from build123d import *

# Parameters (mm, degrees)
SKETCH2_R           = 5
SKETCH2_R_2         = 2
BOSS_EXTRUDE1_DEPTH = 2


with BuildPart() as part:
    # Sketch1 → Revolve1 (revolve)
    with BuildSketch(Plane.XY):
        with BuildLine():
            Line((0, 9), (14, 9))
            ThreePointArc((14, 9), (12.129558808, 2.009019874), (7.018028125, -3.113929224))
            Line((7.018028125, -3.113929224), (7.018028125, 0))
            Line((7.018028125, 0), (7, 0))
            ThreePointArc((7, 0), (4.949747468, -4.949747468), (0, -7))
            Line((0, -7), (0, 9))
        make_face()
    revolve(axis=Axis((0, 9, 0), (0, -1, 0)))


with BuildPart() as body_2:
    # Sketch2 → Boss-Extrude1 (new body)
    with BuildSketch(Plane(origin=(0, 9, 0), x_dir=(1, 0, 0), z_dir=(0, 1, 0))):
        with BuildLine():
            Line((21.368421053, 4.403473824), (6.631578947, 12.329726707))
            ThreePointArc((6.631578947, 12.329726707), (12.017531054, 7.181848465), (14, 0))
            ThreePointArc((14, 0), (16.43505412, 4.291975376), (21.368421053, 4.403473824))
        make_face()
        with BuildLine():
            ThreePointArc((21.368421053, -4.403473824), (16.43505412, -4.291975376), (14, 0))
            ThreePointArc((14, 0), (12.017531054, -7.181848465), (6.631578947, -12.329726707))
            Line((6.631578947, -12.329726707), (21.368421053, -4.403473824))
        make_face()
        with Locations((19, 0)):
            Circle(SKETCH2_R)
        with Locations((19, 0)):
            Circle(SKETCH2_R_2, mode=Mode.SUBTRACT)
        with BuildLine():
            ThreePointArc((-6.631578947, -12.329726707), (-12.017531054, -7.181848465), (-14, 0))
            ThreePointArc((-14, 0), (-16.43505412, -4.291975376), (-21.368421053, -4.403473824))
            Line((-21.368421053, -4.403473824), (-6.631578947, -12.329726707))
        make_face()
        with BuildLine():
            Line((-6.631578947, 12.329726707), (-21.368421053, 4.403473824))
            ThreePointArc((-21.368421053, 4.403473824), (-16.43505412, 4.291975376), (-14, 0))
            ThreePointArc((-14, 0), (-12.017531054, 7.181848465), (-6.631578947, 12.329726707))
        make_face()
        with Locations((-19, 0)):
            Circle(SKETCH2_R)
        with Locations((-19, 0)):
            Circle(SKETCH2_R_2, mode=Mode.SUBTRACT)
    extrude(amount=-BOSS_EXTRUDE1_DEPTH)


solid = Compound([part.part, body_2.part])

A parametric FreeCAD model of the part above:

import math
import FreeCAD as App
import Part
import Sketcher
from FreeCAD import Vector
Q = App.Units.Quantity

doc = App.newDocument("Part")
body = doc.addObject("PartDesign::Body", "Body")

sketch1 = body.newObject("Sketcher::SketchObject", "Sketch")
sketch1.AttachmentSupport = (doc.getObject("XY_Plane"), [""])
sketch1.MapMode = "FlatFace"
sketch1.addGeometry([
    Part.LineSegment(Vector(14, 9, 0), Vector(0, 9, 0)),
    Part.LineSegment(Vector(0, 9, 0), Vector(0, -7, 0)),
    Part.ArcOfCircle(Part.Circle(Vector(0, 0, 0), Vector(0, 0, 1), 7), math.radians(-90), math.radians(0)),
    Part.LineSegment(Vector(7, 0, 0), Vector(7.018028, 0, 0)),
    Part.LineSegment(Vector(7.018028, 0, 0), Vector(7.018028, -3.113929, 0)),
    Part.ArcOfCircle(Part.Circle(Vector(0, 9, 0), Vector(0, 0, 1), 14), math.radians(-59.914768), math.radians(0)),
], False)
sketch1.addConstraint([
    Sketcher.Constraint("Coincident", 0, 2, 1, 1),
    Sketcher.Constraint("Coincident", 1, 2, 2, 1),
    Sketcher.Constraint("Coincident", 2, 2, 3, 1),
    Sketcher.Constraint("Coincident", 3, 2, 4, 1),
    Sketcher.Constraint("Coincident", 4, 2, 5, 1),
    Sketcher.Constraint("Coincident", 5, 2, 0, 1),
    Sketcher.Constraint("Horizontal", 0),
    Sketcher.Constraint("Vertical", 1),
    Sketcher.Constraint("Horizontal", 3),
    Sketcher.Constraint("Vertical", 4),
    Sketcher.Constraint("Coincident", 2, 3, -1, 1),
    Sketcher.Constraint("Coincident", 0, 2, 5, 3),
    Sketcher.Constraint("PointOnObject", 5, 3, -2),
    Sketcher.Constraint("PointOnObject", 2, 2, -1),
    Sketcher.Constraint("Radius", 2, Q("7 mm")),
    Sketcher.Constraint("Radius", 5, Q("14 mm")),
    Sketcher.Constraint("DistanceY", 1, 2, 1, 1, Q("16 mm")),
    Sketcher.Constraint("DistanceX", 3, 1, 3, 2, Q("0.018028 mm")),
])
revolution = body.newObject("PartDesign::Revolution", "Revolution")
revolution.Profile = sketch1
revolution.ReferenceAxis = (sketch1, ["V_Axis"])
revolution.Angle = 360
body2 = doc.addObject("PartDesign::Body", "Body001")
body2.AllowCompound = True

sketch2 = body2.newObject("Sketcher::SketchObject", "Sketch001")
sketch2.AttachmentSupport = (doc.getObject("XZ_Plane001"), [""])
sketch2.MapMode = "FlatFace"
sketch2.AttachmentOffset = App.Placement(Vector(0, 0, -9), App.Rotation())
sketch2.addGeometry([
    Part.LineSegment(Vector(21.368421, -4.403474, 0), Vector(6.631579, -12.329727, 0)),
    Part.ArcOfCircle(Part.Circle(Vector(0, 0, 0), Vector(0, 0, 1), 14), math.radians(-61.726286), math.radians(0)),
    Part.ArcOfCircle(Part.Circle(Vector(0, 0, 0), Vector(0, 0, 1), 14), math.radians(0), math.radians(61.726286)),
    Part.LineSegment(Vector(6.631579, 12.329727, 0), Vector(21.368421, 4.403474, 0)),
    Part.ArcOfCircle(Part.Circle(Vector(19, 0, 0), Vector(0, 0, 1), 5), math.radians(-61.726286), math.radians(61.726286)),
    Part.Circle(Vector(19, 0, 0), Vector(0, 0, 1), 2),
    Part.ArcOfCircle(Part.Circle(Vector(0, 0, 0), Vector(0, 0, 1), 14), math.radians(118.273714), math.radians(180)),
    Part.ArcOfCircle(Part.Circle(Vector(0, 0, 0), Vector(0, 0, 1), 14), math.radians(180), math.radians(241.726286)),
    Part.LineSegment(Vector(-6.631579, -12.329727, 0), Vector(-21.368421, -4.403474, 0)),
    Part.ArcOfCircle(Part.Circle(Vector(-19, 0, 0), Vector(0, 0, 1), 5), math.radians(118.273714), math.radians(241.726286)),
    Part.LineSegment(Vector(-21.368421, 4.403474, 0), Vector(-6.631579, 12.329727, 0)),
    Part.Circle(Vector(-19, 0, 0), Vector(0, 0, 1), 2),
], False)
sketch2.addConstraint([
    Sketcher.Constraint("Tangent", 0, 2, 1, 1),
    Sketcher.Constraint("Tangent", 1, 2, 2, 1),
    Sketcher.Constraint("Tangent", 2, 2, 3, 1),
    Sketcher.Constraint("Tangent", 3, 2, 4, 2),
    Sketcher.Constraint("Tangent", 4, 1, 0, 1),
    Sketcher.Constraint("Tangent", 6, 2, 7, 1),
    Sketcher.Constraint("Tangent", 7, 2, 8, 1),
    Sketcher.Constraint("Tangent", 8, 2, 9, 2),
    Sketcher.Constraint("Tangent", 9, 1, 10, 1),
    Sketcher.Constraint("Tangent", 10, 2, 6, 1),
    Sketcher.Constraint("Coincident", 1, 3, -1, 1),
    Sketcher.Constraint("Coincident", 6, 3, -1, 1),
    Sketcher.Constraint("Coincident", 5, 3, 4, 3),
    Sketcher.Constraint("Coincident", 11, 3, 9, 3),
    Sketcher.Constraint("Equal", 1, 2),
    Sketcher.Constraint("Equal", 2, 6),
    Sketcher.Constraint("Equal", 6, 7),
    Sketcher.Constraint("Equal", 4, 9),
    Sketcher.Constraint("Equal", 5, 11),
    Sketcher.Constraint("Symmetric", 4, 3, 9, 3, -1, 1),
    Sketcher.Constraint("PointOnObject", 4, 3, -1),
    Sketcher.Constraint("PointOnObject", 1, 2, -1),
    Sketcher.Constraint("PointOnObject", 6, 2, -1),
    Sketcher.Constraint("Diameter", 5, Q("4 mm")),
    Sketcher.Constraint("Radius", 1, Q("14 mm")),
    Sketcher.Constraint("Radius", 4, Q("5 mm")),
    Sketcher.Constraint("DistanceX", -1, 1, 4, 3, Q("19 mm")),
])
pad1 = body2.newObject("PartDesign::Pad", "Pad")
pad1.Profile = sketch2
pad1.Length = 2

doc.recompute()
